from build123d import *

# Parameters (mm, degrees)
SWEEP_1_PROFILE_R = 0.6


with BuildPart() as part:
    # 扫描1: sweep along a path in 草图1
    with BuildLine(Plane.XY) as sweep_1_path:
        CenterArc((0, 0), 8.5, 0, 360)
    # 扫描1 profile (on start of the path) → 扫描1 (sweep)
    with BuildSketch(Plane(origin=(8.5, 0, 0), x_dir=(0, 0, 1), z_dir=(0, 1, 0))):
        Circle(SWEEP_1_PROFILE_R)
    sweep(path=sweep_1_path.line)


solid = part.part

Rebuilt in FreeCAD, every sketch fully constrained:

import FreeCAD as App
import Part
import Sketcher
from FreeCAD import Vector

doc = App.newDocument("Part")
params = doc.addObject("Spreadsheet::Sheet", "Params")
for row, (alias, value) in enumerate([
    ("sketch1_diameter", "1.2 mm"),
    ("sketch2_diameter", "17 mm"),
], start=1):
    params.set(f"A{row}", alias)
    params.set(f"B{row}", "=" + value)
    params.setAlias(f"B{row}", alias)

body = doc.addObject("PartDesign::Body", "Body")

sketch1 = doc.addObject("Sketcher::SketchObject", "Sketch")
body.addObject(sketch1)
sketch1.AttachmentSupport = (doc.XZ_Plane, [""])
sketch1.MapMode = "FlatFace"
sketch1.addGeometry(Part.Circle(Vector(8.5, 0, 0), Vector(0, 0, 1), 0.6), False)
sketch1.addConstraint(Sketcher.Constraint("PointOnObject", 0, 3, -1))
sketch1.addConstraint(Sketcher.Constraint("Diameter", 0, 1.2))
sketch1.addConstraint(Sketcher.Constraint("DistanceX", -1, 1, 0, 3, 8.5))
sketch1.setExpression("Constraints[1]", "Params.sketch1_diameter")

sketch2 = doc.addObject("Sketcher::SketchObject", "Sketch001")
body.addObject(sketch2)
sketch2.AttachmentSupport = (doc.XY_Plane, [""])
sketch2.MapMode = "FlatFace"
sketch2.addGeometry(Part.Circle(Vector(0, 0, 0), Vector(0, 0, 1), 8), False)
sketch2.addConstraint(Sketcher.Constraint("Coincident", 0, 3, -1, 1))
sketch2.addConstraint(Sketcher.Constraint("Diameter", 0, 17.0))
sketch2.setExpression("Constraints[1]", "Params.sketch2_diameter")
doc.recompute()

additivepipe = doc.addObject("PartDesign::AdditivePipe", "AdditivePipe")
body.addObject(additivepipe)
additivepipe.Profile = sketch1
additivepipe.Spine = (sketch2, ["Edge1"])

doc.recompute()
